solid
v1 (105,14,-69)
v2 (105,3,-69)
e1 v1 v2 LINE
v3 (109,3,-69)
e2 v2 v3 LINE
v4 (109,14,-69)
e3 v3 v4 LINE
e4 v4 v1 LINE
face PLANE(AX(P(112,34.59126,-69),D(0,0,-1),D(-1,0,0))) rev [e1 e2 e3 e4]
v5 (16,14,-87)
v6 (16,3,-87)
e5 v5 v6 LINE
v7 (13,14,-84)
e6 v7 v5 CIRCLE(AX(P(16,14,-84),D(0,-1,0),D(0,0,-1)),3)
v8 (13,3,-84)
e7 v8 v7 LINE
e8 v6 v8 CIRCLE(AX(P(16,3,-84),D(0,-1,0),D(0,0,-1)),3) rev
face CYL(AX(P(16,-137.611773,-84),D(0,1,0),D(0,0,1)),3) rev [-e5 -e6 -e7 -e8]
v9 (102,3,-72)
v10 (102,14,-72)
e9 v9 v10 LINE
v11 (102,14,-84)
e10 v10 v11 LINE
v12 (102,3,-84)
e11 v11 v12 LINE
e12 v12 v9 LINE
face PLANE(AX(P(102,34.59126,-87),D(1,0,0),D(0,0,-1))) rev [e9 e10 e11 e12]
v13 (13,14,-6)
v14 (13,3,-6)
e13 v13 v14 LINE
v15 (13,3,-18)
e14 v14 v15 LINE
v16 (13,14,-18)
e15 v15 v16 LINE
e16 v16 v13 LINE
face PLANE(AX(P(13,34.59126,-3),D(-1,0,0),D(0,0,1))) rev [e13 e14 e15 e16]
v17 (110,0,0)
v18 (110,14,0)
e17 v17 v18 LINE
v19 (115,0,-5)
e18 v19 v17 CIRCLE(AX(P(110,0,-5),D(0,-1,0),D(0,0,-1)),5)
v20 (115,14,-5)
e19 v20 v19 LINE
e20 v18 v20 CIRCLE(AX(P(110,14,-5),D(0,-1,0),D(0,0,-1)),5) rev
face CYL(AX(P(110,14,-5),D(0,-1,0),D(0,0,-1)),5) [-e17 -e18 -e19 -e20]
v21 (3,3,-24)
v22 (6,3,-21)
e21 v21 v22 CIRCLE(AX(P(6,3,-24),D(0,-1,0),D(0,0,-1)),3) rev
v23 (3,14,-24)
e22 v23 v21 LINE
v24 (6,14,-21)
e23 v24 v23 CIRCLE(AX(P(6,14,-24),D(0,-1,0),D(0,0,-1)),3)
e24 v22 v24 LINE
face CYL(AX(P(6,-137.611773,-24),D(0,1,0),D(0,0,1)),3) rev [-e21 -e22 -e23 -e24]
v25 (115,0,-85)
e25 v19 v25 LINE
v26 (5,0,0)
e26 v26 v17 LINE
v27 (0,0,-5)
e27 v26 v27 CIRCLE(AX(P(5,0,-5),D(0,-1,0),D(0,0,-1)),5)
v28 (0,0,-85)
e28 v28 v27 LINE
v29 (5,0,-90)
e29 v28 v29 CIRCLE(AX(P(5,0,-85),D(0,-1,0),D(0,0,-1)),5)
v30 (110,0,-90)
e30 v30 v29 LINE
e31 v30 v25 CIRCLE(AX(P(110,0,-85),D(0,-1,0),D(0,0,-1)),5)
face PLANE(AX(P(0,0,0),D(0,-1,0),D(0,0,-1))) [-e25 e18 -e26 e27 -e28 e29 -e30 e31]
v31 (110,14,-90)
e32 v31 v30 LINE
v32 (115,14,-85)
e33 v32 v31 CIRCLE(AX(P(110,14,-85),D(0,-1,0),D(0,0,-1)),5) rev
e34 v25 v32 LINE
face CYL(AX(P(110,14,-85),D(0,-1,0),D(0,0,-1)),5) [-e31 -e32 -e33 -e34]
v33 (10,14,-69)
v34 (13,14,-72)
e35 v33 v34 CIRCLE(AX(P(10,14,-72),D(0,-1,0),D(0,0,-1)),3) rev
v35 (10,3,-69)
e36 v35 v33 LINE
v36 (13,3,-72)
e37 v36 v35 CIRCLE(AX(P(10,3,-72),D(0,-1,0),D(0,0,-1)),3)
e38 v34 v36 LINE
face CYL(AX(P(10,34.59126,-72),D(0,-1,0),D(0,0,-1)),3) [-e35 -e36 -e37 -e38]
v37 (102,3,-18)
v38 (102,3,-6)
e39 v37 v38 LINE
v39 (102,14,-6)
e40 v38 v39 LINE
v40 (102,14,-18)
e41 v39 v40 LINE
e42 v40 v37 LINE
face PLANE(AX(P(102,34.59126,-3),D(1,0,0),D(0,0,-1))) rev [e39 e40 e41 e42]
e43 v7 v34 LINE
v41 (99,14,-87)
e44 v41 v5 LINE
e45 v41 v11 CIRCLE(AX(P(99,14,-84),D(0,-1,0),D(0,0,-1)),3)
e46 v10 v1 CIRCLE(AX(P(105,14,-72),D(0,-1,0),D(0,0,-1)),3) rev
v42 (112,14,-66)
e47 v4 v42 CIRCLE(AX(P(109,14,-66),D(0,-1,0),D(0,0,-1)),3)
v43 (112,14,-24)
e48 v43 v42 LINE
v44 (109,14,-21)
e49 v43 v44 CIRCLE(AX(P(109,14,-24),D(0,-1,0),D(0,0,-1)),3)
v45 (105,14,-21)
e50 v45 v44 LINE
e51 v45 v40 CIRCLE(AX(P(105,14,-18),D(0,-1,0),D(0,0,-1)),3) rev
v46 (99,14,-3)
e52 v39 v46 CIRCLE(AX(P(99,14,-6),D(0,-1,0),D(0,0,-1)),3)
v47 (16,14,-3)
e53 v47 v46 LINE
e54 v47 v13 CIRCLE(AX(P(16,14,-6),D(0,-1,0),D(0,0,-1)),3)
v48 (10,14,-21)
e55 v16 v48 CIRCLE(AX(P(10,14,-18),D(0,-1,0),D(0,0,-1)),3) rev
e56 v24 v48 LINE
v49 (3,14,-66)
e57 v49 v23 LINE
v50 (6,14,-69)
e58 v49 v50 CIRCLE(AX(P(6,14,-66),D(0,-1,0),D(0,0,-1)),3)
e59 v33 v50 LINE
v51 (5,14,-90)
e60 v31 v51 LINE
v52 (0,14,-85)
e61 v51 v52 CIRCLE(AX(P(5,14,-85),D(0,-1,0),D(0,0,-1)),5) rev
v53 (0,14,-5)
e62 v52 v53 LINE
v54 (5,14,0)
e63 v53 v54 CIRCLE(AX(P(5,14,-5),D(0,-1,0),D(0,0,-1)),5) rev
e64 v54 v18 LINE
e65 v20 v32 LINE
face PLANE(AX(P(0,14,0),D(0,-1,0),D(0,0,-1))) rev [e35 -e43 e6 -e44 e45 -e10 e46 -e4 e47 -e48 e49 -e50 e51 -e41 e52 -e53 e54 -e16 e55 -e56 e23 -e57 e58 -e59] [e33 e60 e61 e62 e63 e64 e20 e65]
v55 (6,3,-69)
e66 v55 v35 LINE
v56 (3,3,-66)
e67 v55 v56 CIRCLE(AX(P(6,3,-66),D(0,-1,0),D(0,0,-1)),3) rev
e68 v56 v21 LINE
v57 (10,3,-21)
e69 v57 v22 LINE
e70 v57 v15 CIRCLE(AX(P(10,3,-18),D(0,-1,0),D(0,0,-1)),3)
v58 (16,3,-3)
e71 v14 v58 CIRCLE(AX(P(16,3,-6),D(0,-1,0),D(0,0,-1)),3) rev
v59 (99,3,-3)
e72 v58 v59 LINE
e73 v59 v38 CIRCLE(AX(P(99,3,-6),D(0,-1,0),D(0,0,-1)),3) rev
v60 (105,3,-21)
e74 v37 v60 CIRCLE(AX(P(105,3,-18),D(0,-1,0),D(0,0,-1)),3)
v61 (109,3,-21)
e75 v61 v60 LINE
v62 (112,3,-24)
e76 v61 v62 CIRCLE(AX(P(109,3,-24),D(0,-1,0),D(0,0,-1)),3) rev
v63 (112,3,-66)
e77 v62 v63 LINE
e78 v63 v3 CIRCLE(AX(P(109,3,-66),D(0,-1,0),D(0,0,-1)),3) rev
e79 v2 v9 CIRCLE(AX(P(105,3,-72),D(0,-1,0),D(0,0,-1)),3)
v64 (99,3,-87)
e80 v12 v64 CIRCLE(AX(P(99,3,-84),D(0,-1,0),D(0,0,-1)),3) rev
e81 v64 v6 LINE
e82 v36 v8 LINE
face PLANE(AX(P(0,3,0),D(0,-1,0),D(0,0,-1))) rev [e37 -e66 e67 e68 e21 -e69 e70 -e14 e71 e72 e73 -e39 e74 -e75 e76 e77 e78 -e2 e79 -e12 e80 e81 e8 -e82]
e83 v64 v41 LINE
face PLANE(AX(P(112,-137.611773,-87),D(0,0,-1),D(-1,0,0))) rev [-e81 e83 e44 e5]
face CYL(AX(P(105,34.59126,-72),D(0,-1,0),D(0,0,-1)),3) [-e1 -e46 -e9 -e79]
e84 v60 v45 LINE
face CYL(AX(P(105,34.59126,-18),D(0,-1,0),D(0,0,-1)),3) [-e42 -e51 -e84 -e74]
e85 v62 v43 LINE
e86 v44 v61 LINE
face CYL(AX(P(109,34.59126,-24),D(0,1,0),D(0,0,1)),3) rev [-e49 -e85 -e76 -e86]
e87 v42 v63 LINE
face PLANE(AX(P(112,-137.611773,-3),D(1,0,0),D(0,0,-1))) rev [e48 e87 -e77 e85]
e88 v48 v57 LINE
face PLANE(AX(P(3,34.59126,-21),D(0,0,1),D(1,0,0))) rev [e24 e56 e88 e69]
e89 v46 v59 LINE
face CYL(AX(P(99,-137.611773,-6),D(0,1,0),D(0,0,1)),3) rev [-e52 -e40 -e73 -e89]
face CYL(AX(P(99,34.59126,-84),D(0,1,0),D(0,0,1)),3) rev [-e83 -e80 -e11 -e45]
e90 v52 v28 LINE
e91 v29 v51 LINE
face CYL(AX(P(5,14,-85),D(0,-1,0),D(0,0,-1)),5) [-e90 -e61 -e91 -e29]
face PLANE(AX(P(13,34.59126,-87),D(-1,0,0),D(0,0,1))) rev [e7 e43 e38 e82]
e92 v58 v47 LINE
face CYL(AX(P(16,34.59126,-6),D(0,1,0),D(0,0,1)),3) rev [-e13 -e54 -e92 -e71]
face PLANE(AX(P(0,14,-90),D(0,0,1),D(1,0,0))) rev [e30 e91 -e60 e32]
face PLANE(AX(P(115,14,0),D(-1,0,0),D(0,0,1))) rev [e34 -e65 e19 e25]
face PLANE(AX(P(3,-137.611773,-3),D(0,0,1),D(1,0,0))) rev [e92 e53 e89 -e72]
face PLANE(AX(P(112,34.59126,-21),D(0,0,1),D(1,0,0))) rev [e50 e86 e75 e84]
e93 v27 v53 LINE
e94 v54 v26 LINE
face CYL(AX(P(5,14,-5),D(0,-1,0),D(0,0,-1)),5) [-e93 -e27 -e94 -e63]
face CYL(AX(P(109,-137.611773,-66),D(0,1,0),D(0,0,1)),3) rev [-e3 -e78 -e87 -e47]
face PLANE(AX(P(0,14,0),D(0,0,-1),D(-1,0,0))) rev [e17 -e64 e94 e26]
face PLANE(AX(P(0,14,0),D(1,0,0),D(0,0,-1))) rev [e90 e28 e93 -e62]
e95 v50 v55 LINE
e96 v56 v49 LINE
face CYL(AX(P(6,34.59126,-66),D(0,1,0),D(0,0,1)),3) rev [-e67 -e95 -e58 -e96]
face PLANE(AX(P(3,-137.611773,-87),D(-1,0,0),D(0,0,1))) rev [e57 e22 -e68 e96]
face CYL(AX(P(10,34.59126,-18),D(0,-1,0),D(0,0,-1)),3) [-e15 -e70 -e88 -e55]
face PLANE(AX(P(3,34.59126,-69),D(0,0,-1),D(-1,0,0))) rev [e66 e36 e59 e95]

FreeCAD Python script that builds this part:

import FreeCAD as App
import Part
import Sketcher
from FreeCAD import Vector


def edges_at(feature, points):
    """Names of the edges that pass closest to the given points."""
    edges = feature.Shape.Edges
    near = lambda p: min(range(len(edges)), key=lambda i: edges[i].distToShape(Part.Vertex(*p))[0])
    return sorted({f"Edge{near(p) + 1}" for p in points})

doc = App.newDocument("Part")
body = doc.addObject("PartDesign::Body", "Body")

sketch1 = body.newObject("Sketcher::SketchObject", "Sketch")
sketch1.AttachmentSupport = (doc.getObject("XZ_Plane"), [""])
sketch1.MapMode = "FlatFace"
sketch1.addGeometry(Part.LineSegment(Vector(0, -90, 0), Vector(0, 0, 0)), False)
sketch1.addGeometry(Part.LineSegment(Vector(0, 0, 0), Vector(115, 0, 0)), False)
sketch1.addGeometry(Part.LineSegment(Vector(115, 0, 0), Vector(115, -90, 0)), False)
sketch1.addGeometry(Part.LineSegment(Vector(115, -90, 0), Vector(0, -90, 0)), False)
sketch1.addConstraint(Sketcher.Constraint("Coincident", 0, 2, 1, 1))
sketch1.addConstraint(Sketcher.Constraint("Coincident", 1, 2, 2, 1))
sketch1.addConstraint(Sketcher.Constraint("Coincident", 2, 2, 3, 1))
sketch1.addConstraint(Sketcher.Constraint("Coincident", 3, 2, 0, 1))
sketch1.addConstraint(Sketcher.Constraint("Vertical", 0))
sketch1.addConstraint(Sketcher.Constraint("Horizontal", 1))
sketch1.addConstraint(Sketcher.Constraint("Vertical", 2))
sketch1.addConstraint(Sketcher.Constraint("Horizontal", 3))
sketch1.addConstraint(Sketcher.Constraint("Coincident", 0, 2, -1, 1))
sketch1.addConstraint(Sketcher.Constraint("DistanceX", 1, 1, 1, 2, 115.0))
sketch1.addConstraint(Sketcher.Constraint("DistanceY", 0, 1, 0, 2, 90.0))
pad1 = body.newObject("PartDesign::Pad", "Pad")
pad1.Profile = sketch1
pad1.Length = 14
pad1.Reversed = True

sketch2 = body.newObject("Sketcher::SketchObject", "Sketch001")
sketch2.AttachmentSupport = (doc.getObject("XZ_Plane"), [""])
sketch2.MapMode = "FlatFace"
sketch2.AttachmentOffset = App.Placement(Vector(0, 0, -14), App.Rotation())
sketch2.addGeometry(Part.LineSegment(Vector(3, -87, 0), Vector(3, -3, 0)), False)
sketch2.addGeometry(Part.LineSegment(Vector(3, -3, 0), Vector(112, -3, 0)), False)
sketch2.addGeometry(Part.LineSegment(Vector(112, -3, 0), Vector(112, -87, 0)), False)
sketch2.addGeometry(Part.LineSegment(Vector(112, -87, 0), Vector(3, -87, 0)), False)
sketch2.addConstraint(Sketcher.Constraint("Coincident", 0, 2, 1, 1))
sketch2.addConstraint(Sketcher.Constraint("Coincident", 1, 2, 2, 1))
sketch2.addConstraint(Sketcher.Constraint("Coincident", 2, 2, 3, 1))
sketch2.addConstraint(Sketcher.Constraint("Coincident", 3, 2, 0, 1))
sketch2.addConstraint(Sketcher.Constraint("Vertical", 0))
sketch2.addConstraint(Sketcher.Constraint("Horizontal", 1))
sketch2.addConstraint(Sketcher.Constraint("Vertical", 2))
sketch2.addConstraint(Sketcher.Constraint("Horizontal", 3))
sketch2.addConstraint(Sketcher.Constraint("DistanceX", 1, 1, 1, 2, 109.0))
sketch2.addConstraint(Sketcher.Constraint("DistanceY", 0, 1, 0, 2, 84.0))
sketch2.addConstraint(Sketcher.Constraint("DistanceX", -1, 1, 0, 2, 3.0))
sketch2.addConstraint(Sketcher.Constraint("DistanceY", 0, 2, -1, 1, 3.0))
pocket1 = body.newObject("PartDesign::Pocket", "Pocket")
pocket1.Profile = sketch2
pocket1.Length = 11
pocket1.Reversed = True

sketch3 = body.newObject("Sketcher::SketchObject", "Sketch002")
sketch3.AttachmentSupport = (doc.getObject("XZ_Plane"), [""])
sketch3.MapMode = "FlatFace"
sketch3.AttachmentOffset = App.Placement(Vector(0, 0, -3), App.Rotation())
sketch3.addGeometry(Part.LineSegment(Vector(3, -87, 0), Vector(3, -69, 0)), False)
sketch3.addGeometry(Part.LineSegment(Vector(3, -69, 0), Vector(13, -69, 0)), False)
sketch3.addGeometry(Part.LineSegment(Vector(13, -69, 0), Vector(13, -87, 0)), False)
sketch3.addGeometry(Part.LineSegment(Vector(13, -87, 0), Vector(3, -87, 0)), False)
sketch3.addGeometry(Part.LineSegment(Vector(102, -87, 0), Vector(102, -69, 0)), False)
sketch3.addGeometry(Part.LineSegment(Vector(102, -69, 0), Vector(112, -69, 0)), False)
sketch3.addGeometry(Part.LineSegment(Vector(112, -69, 0), Vector(112, -87, 0)), False)
sketch3.addGeometry(Part.LineSegment(Vector(112, -87, 0), Vector(102, -87, 0)), False)
sketch3.addGeometry(Part.LineSegment(Vector(102, -21, 0), Vector(102, -3, 0)), False)
sketch3.addGeometry(Part.LineSegment(Vector(102, -3, 0), Vector(112, -3, 0)), False)
sketch3.addGeometry(Part.LineSegment(Vector(112, -3, 0), Vector(112, -21, 0)), False)
sketch3.addGeometry(Part.LineSegment(Vector(112, -21, 0), Vector(102, -21, 0)), False)
sketch3.addGeometry(Part.LineSegment(Vector(3, -21, 0), Vector(3, -3, 0)), False)
sketch3.addGeometry(Part.LineSegment(Vector(3, -3, 0), Vector(13, -3, 0)), False)
sketch3.addGeometry(Part.LineSegment(Vector(13, -3, 0), Vector(13, -21, 0)), False)
sketch3.addGeometry(Part.LineSegment(Vector(13, -21, 0), Vector(3, -21, 0)), False)
sketch3.addConstraint(Sketcher.Constraint("Coincident", 0, 2, 1, 1))
sketch3.addConstraint(Sketcher.Constraint("Coincident", 1, 2, 2, 1))
sketch3.addConstraint(Sketcher.Constraint("Coincident", 2, 2, 3, 1))
sketch3.addConstraint(Sketcher.Constraint("Coincident", 3, 2, 0, 1))
sketch3.addConstraint(Sketcher.Constraint("Coincident", 4, 2, 5, 1))
sketch3.addConstraint(Sketcher.Constraint("Coincident", 5, 2, 6, 1))
sketch3.addConstraint(Sketcher.Constraint("Coincident", 6, 2, 7, 1))
sketch3.addConstraint(Sketcher.Constraint("Coincident", 7, 2, 4, 1))
sketch3.addConstraint(Sketcher.Constraint("Coincident", 8, 2, 9, 1))
sketch3.addConstraint(Sketcher.Constraint("Coincident", 9, 2, 10, 1))
sketch3.addConstraint(Sketcher.Constraint("Coincident", 10, 2, 11, 1))
sketch3.addConstraint(Sketcher.Constraint("Coincident", 11, 2, 8, 1))
sketch3.addConstraint(Sketcher.Constraint("Coincident", 12, 2, 13, 1))
sketch3.addConstraint(Sketcher.Constraint("Coincident", 13, 2, 14, 1))
sketch3.addConstraint(Sketcher.Constraint("Coincident", 14, 2, 15, 1))
sketch3.addConstraint(Sketcher.Constraint("Coincident", 15, 2, 12, 1))
sketch3.addConstraint(Sketcher.Constraint("Vertical", 0))
sketch3.addConstraint(Sketcher.Constraint("Horizontal", 1))
sketch3.addConstraint(Sketcher.Constraint("Vertical", 2))
sketch3.addConstraint(Sketcher.Constraint("Horizontal", 3))
sketch3.addConstraint(Sketcher.Constraint("Vertical", 4))
sketch3.addConstraint(Sketcher.Constraint("Horizontal", 5))
sketch3.addConstraint(Sketcher.Constraint("Vertical", 6))
sketch3.addConstraint(Sketcher.Constraint("Horizontal", 7))
sketch3.addConstraint(Sketcher.Constraint("Vertical", 8))
sketch3.addConstraint(Sketcher.Constraint("Horizontal", 9))
sketch3.addConstraint(Sketcher.Constraint("Vertical", 10))
sketch3.addConstraint(Sketcher.Constraint("Horizontal", 11))
sketch3.addConstraint(Sketcher.Constraint("Vertical", 12))
sketch3.addConstraint(Sketcher.Constraint("Horizontal", 13))
sketch3.addConstraint(Sketcher.Constraint("Vertical", 14))
sketch3.addConstraint(Sketcher.Constraint("Horizontal", 15))
sketch3.addConstraint(Sketcher.Constraint("Horizontal", 1, 2, 4, 2))
sketch3.addConstraint(Sketcher.Constraint("Horizontal", 3, 2, 6, 2))
sketch3.addConstraint(Sketcher.Constraint("Horizontal", 9, 2, 12, 2))
sketch3.addConstraint(Sketcher.Constraint("Horizontal", 11, 2, 14, 2))
sketch3.addConstraint(Sketcher.Constraint("Vertical", 7, 2, 8, 2))
sketch3.addConstraint(Sketcher.Constraint("Vertical", 6, 2, 9, 2))
sketch3.addConstraint(Sketcher.Constraint("Vertical", 3, 2, 12, 2))
sketch3.addConstraint(Sketcher.Constraint("Vertical", 2, 2, 13, 2))
sketch3.addConstraint(Sketcher.Constraint("Equal", 3, 5))
sketch3.addConstraint(Sketcher.Constraint("Equal", 6, 8))
sketch3.addConstraint(Sketcher.Constraint("DistanceX", 1, 1, 1, 2, 10.0))
sketch3.addConstraint(Sketcher.Constraint("DistanceY", 0, 1, 0, 2, 18.0))
sketch3.addConstraint(Sketcher.Constraint("DistanceX", -1, 1, 0, 2, 3.0))
sketch3.addConstraint(Sketcher.Constraint("DistanceY", 0, 2, -1, 1, 69.0))
sketch3.addConstraint(Sketcher.Constraint("DistanceX", -1, 1, 4, 2, 102.0))
sketch3.addConstraint(Sketcher.Constraint("DistanceY", 8, 2, -1, 1, 3.0))
pad2 = body.newObject("PartDesign::Pad", "Pad001")
pad2.Profile = sketch3
pad2.Length = 11
pad2.Reversed = True
doc.recompute()

fillet = body.newObject("PartDesign::Fillet", "Fillet")
fillet.Base = (pad2, edges_at(pad2, [
    (13, 8.5, -87),
    (13, 8.5, -69),
    (3, 8.5, -69),
    (102, 8.5, -69),
    (102, 8.5, -87),
    (112, 8.5, -69),
    (102, 8.5, -21),
    (112, 8.5, -21),
    (102, 8.5, -3),
    (13, 8.5, -21),
    (13, 8.5, -3),
    (3, 8.5, -21),
]))
fillet.Radius = 3
doc.recompute()

fillet2 = body.newObject("PartDesign::Fillet", "Fillet001")
fillet2.Base = (fillet, edges_at(fillet, [
    (0, 7, -90),
    (115, 7, -90),
    (115, 7, 0),
    (0, 7, 0),
]))
fillet2.Radius = 5

doc.recompute()
